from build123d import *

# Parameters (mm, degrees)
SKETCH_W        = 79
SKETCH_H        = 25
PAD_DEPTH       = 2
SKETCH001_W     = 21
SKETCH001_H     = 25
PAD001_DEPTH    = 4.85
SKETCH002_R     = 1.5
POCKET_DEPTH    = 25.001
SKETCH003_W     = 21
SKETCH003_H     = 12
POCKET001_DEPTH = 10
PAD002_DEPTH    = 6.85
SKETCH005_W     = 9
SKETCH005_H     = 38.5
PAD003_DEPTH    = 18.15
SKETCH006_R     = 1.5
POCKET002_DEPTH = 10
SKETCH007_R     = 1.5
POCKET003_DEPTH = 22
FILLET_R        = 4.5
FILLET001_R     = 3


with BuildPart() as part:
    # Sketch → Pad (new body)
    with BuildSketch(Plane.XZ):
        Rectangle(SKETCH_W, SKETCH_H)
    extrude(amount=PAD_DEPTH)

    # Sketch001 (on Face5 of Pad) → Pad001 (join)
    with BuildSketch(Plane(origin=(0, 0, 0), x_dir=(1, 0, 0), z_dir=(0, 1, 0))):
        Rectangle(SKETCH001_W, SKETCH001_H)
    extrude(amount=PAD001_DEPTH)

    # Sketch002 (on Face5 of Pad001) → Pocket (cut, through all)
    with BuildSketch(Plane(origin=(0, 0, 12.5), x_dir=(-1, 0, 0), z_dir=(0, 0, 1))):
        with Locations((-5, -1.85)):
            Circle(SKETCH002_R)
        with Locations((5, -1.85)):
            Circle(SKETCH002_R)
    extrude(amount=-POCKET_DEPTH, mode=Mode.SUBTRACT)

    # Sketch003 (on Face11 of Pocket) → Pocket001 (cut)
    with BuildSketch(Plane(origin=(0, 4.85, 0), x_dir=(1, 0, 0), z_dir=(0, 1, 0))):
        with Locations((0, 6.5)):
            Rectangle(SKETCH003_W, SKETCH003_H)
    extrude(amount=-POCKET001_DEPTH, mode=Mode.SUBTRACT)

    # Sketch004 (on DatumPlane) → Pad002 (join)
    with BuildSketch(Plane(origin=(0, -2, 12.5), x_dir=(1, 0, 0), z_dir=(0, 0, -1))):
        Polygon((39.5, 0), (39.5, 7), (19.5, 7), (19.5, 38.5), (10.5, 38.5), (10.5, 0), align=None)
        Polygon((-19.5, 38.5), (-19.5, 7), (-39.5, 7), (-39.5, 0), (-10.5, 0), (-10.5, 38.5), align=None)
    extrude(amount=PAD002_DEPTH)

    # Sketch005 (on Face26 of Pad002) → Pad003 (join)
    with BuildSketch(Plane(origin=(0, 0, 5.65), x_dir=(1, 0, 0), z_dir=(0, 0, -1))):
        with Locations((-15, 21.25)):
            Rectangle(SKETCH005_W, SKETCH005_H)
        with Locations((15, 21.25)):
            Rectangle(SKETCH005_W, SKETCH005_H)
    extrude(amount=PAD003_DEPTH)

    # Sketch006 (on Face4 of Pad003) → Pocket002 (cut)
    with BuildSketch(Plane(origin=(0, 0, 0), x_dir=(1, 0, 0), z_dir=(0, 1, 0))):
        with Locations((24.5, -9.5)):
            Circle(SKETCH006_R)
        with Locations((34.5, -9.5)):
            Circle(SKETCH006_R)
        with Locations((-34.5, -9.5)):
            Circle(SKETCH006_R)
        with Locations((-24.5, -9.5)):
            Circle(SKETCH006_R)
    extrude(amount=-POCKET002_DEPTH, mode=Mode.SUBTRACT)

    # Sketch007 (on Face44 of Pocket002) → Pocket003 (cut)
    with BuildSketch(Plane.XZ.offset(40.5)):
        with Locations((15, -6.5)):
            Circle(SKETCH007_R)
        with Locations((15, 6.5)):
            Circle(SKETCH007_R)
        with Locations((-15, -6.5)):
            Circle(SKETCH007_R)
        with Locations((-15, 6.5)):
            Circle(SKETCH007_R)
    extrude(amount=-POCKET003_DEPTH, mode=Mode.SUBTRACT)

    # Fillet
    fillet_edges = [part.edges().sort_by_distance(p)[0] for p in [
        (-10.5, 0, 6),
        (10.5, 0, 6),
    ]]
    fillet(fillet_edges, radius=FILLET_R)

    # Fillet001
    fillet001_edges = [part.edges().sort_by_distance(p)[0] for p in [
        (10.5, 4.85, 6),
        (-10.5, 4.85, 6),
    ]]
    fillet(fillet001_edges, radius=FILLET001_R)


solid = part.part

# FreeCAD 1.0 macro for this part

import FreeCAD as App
import Part
import Sketcher

V = App.Vector
Q = App.Units.Quantity


def edges_at(feature, points):
    """Names of the edges that pass closest to the given points."""
    edges = feature.Shape.Edges
    near = lambda p: min(range(len(edges)), key=lambda i: edges[i].distToShape(Part.Vertex(*p))[0])
    return sorted({f"Edge{near(p) + 1}" for p in points})

doc = App.newDocument("Part")
body = doc.addObject("PartDesign::Body", "Body")

# Sketch on XZ plane
sketch1 = body.newObject("Sketcher::SketchObject", "Sketch")
sketch1.AttachmentSupport = (doc.getObject("XZ_Plane"), [""])
sketch1.MapMode = "FlatFace"
sketch1.addGeometry([
    Part.LineSegment(V(-39.5, 12.5, 0), V(-39.5, -12.5, 0)),
    Part.LineSegment(V(-39.5, -12.5, 0), V(39.5, -12.5, 0)),
    Part.LineSegment(V(39.5, -12.5, 0), V(39.5, 12.5, 0)),
    Part.LineSegment(V(39.5, 12.5, 0), V(-39.5, 12.5, 0)),
], False)
sketch1.addConstraint([
    Sketcher.Constraint("Coincident", 0, 2, 1, 1),
    Sketcher.Constraint("Coincident", 1, 2, 2, 1),
    Sketcher.Constraint("Coincident", 2, 2, 3, 1),
    Sketcher.Constraint("Coincident", 3, 2, 0, 1),
    Sketcher.Constraint("Vertical", 0),
    Sketcher.Constraint("Horizontal", 1),
    Sketcher.Constraint("Vertical", 2),
    Sketcher.Constraint("Horizontal", 3),
    Sketcher.Constraint("Symmetric", 0, 2, 2, 2, -1, 1),
    Sketcher.Constraint("DistanceX", 1, 1, 1, 2, Q("79 mm")),
    Sketcher.Constraint("DistanceY", 0, 2, 0, 1, Q("25 mm")),
])
pad1 = body.newObject("PartDesign::Pad", "Pad")
pad1.Profile = sketch1
pad1.Length = 2

# Sketch on XZ plane
sketch2 = body.newObject("Sketcher::SketchObject", "Sketch001")
sketch2.AttachmentSupport = (doc.getObject("XZ_Plane"), [""])
sketch2.MapMode = "FlatFace"
sketch2.addGeometry([
    Part.LineSegment(V(-10.5, -12.5, 0), V(-10.5, 12.5, 0)),
    Part.LineSegment(V(-10.5, 12.5, 0), V(10.5, 12.5, 0)),
    Part.LineSegment(V(10.5, 12.5, 0), V(10.5, -12.5, 0)),
    Part.LineSegment(V(10.5, -12.5, 0), V(-10.5, -12.5, 0)),
], False)
sketch2.addConstraint([
    Sketcher.Constraint("Coincident", 0, 2, 1, 1),
    Sketcher.Constraint("Coincident", 1, 2, 2, 1),
    Sketcher.Constraint("Coincident", 2, 2, 3, 1),
    Sketcher.Constraint("Coincident", 3, 2, 0, 1),
    Sketcher.Constraint("Vertical", 0),
    Sketcher.Constraint("Horizontal", 1),
    Sketcher.Constraint("Vertical", 2),
    Sketcher.Constraint("Horizontal", 3),
    Sketcher.Constraint("Symmetric", 0, 2, 2, 2, -1, 1),
    Sketcher.Constraint("DistanceX", 1, 1, 1, 2, Q("21 mm")),
    Sketcher.Constraint("DistanceY", 0, 1, 0, 2, Q("25 mm")),
])
pad2 = body.newObject("PartDesign::Pad", "Pad001")
pad2.Profile = sketch2
pad2.Length = 4.85
pad2.Reversed = True

# Sketch on XY plane
sketch3 = body.newObject("Sketcher::SketchObject", "Sketch002")
sketch3.AttachmentSupport = (doc.getObject("XY_Plane"), [""])
sketch3.MapMode = "FlatFace"
sketch3.AttachmentOffset = App.Placement(V(0, 0, 12.5), App.Rotation())
sketch3.addGeometry([
    Part.Circle(V(5, 1.85, 0), V(0, 0, 1), 1.5),
    Part.Circle(V(-5, 1.85, 0), V(0, 0, 1), 1.5),
], False)
sketch3.addConstraint([
    Sketcher.Constraint("Equal", 0, 1),
    Sketcher.Constraint("Symmetric", 0, 3, 1, 3, -2),
    Sketcher.Constraint("Diameter", 0, Q("3 mm")),
    Sketcher.Constraint("DistanceX", -1, 1, 0, 3, Q("5 mm")),
    Sketcher.Constraint("DistanceY", -1, 1, 0, 3, Q("1.85 mm")),
])
pocket1 = body.newObject("PartDesign::Pocket", "Pocket")
pocket1.Profile = sketch3
pocket1.Type = "ThroughAll"

# Sketch on XZ plane
sketch4 = body.newObject("Sketcher::SketchObject", "Sketch003")
sketch4.AttachmentSupport = (doc.getObject("XZ_Plane"), [""])
sketch4.MapMode = "FlatFace"
sketch4.AttachmentOffset = App.Placement(V(0, 0, -4.85), App.Rotation())
sketch4.addGeometry([
    Part.LineSegment(V(-10.5, -12.5, 0), V(-10.5, -0.5, 0)),
    Part.LineSegment(V(-10.5, -0.5, 0), V(10.5, -0.5, 0)),
    Part.LineSegment(V(10.5, -0.5, 0), V(10.5, -12.5, 0)),
    Part.LineSegment(V(10.5, -12.5, 0), V(-10.5, -12.5, 0)),
], False)
sketch4.addConstraint([
    Sketcher.Constraint("Coincident", 0, 2, 1, 1),
    Sketcher.Constraint("Coincident", 1, 2, 2, 1),
    Sketcher.Constraint("Coincident", 2, 2, 3, 1),
    Sketcher.Constraint("Coincident", 3, 2, 0, 1),
    Sketcher.Constraint("Vertical", 0),
    Sketcher.Constraint("Horizontal", 1),
    Sketcher.Constraint("Vertical", 2),
    Sketcher.Constraint("Horizontal", 3),
    Sketcher.Constraint("DistanceX", 1, 1, 1, 2, Q("21 mm")),
    Sketcher.Constraint("DistanceY", 0, 1, 0, 2, Q("12 mm")),
    Sketcher.Constraint("DistanceX", 0, 2, -1, 1, Q("10.5 mm")),
    Sketcher.Constraint("DistanceY", 0, 2, -1, 1, Q("0.5 mm")),
])
pocket2 = body.newObject("PartDesign::Pocket", "Pocket001")
pocket2.Profile = sketch4
pocket2.Length = 10
pocket2.Reversed = True

# Sketch on XY plane
sketch5 = body.newObject("Sketcher::SketchObject", "Sketch004")
sketch5.AttachmentSupport = (doc.getObject("XY_Plane"), [""])
sketch5.MapMode = "FlatFace"
sketch5.AttachmentOffset = App.Placement(V(0, 0, 12.5), App.Rotation())
sketch5.addGeometry([
    Part.LineSegment(V(39.5, -2, 0), V(39.5, -9, 0)),  # 0
    Part.LineSegment(V(39.5, -9, 0), V(19.5, -9, 0)),  # 1
    Part.LineSegment(V(19.5, -9, 0), V(19.5, -40.5, 0)),  # 2
    Part.LineSegment(V(19.5, -40.5, 0), V(10.5, -40.5, 0)),  # 3
    Part.LineSegment(V(10.5, -40.5, 0), V(10.5, -2, 0)),  # 4
    Part.LineSegment(V(10.5, -2, 0), V(39.5, -2, 0)),  # 5
    Part.LineSegment(V(-19.5, -40.5, 0), V(-19.5, -9, 0)),  # 6
    Part.LineSegment(V(-19.5, -9, 0), V(-39.5, -9, 0)),  # 7
    Part.LineSegment(V(-39.5, -9, 0), V(-39.5, -2, 0)),  # 8
    Part.LineSegment(V(-39.5, -2, 0), V(-10.5, -2, 0)),  # 9
    Part.LineSegment(V(-10.5, -2, 0), V(-10.5, -40.5, 0)),  # 10
    Part.LineSegment(V(-10.5, -40.5, 0), V(-19.5, -40.5, 0)),  # 11
], False)
sketch5.addConstraint([
    Sketcher.Constraint("Coincident", 0, 2, 1, 1),
    Sketcher.Constraint("Coincident", 1, 2, 2, 1),
    Sketcher.Constraint("Coincident", 2, 2, 3, 1),
    Sketcher.Constraint("Coincident", 3, 2, 4, 1),
    Sketcher.Constraint("Coincident", 4, 2, 5, 1),
    Sketcher.Constraint("Coincident", 5, 2, 0, 1),
    Sketcher.Constraint("Coincident", 6, 2, 7, 1),
    Sketcher.Constraint("Coincident", 7, 2, 8, 1),
    Sketcher.Constraint("Coincident", 8, 2, 9, 1),
    Sketcher.Constraint("Coincident", 9, 2, 10, 1),
    Sketcher.Constraint("Coincident", 10, 2, 11, 1),
    Sketcher.Constraint("Coincident", 11, 2, 6, 1),
    Sketcher.Constraint("Vertical", 0),
    Sketcher.Constraint("Horizontal", 1),
    Sketcher.Constraint("Vertical", 2),
    Sketcher.Constraint("Horizontal", 3),
    Sketcher.Constraint("Vertical", 4),
    Sketcher.Constraint("Horizontal", 5),
    Sketcher.Constraint("Vertical", 6),
    Sketcher.Constraint("Horizontal", 7),
    Sketcher.Constraint("Vertical", 8),
    Sketcher.Constraint("Horizontal", 9),
    Sketcher.Constraint("Vertical", 10),
    Sketcher.Constraint("Horizontal", 11),
    Sketcher.Constraint("Symmetric", 1, 2, 6, 2, -2),
    Sketcher.Constraint("Symmetric", 5, 2, 8, 2, -2),
    Sketcher.Constraint("Symmetric", 3, 2, 10, 2, -2),
    Sketcher.Constraint("DistanceX", 1, 2, 1, 1, Q("20 mm")),
    Sketcher.Constraint("DistanceX", 3, 2, 3, 1, Q("9 mm")),
    Sketcher.Constraint("DistanceY", 0, 2, 0, 1, Q("7 mm")),
    Sketcher.Constraint("DistanceY", 2, 2, 2, 1, Q("31.5 mm")),
    Sketcher.Constraint("DistanceY", 0, 2, -1, 1, Q("9 mm")),
    Sketcher.Constraint("DistanceX", 6, 2, 4, 2, Q("30 mm")),
])
pad3 = body.newObject("PartDesign::Pad", "Pad002")
pad3.Profile = sketch5
pad3.Length = 6.85
pad3.Reversed = True

# Sketch on XY plane
sketch6 = body.newObject("Sketcher::SketchObject", "Sketch005")
sketch6.AttachmentSupport = (doc.getObject("XY_Plane"), [""])
sketch6.MapMode = "FlatFace"
sketch6.AttachmentOffset = App.Placement(V(0, 0, 5.65), App.Rotation())
sketch6.addGeometry([
    Part.LineSegment(V(-19.5, -40.5, 0), V(-19.5, -2, 0)),  # 0
    Part.LineSegment(V(-19.5, -2, 0), V(-10.5, -2, 0)),  # 1
    Part.LineSegment(V(-10.5, -2, 0), V(-10.5, -40.5, 0)),  # 2
    Part.LineSegment(V(-10.5, -40.5, 0), V(-19.5, -40.5, 0)),  # 3
    Part.LineSegment(V(10.5, -40.5, 0), V(10.5, -2, 0)),  # 4
    Part.LineSegment(V(10.5, -2, 0), V(19.5, -2, 0)),  # 5
    Part.LineSegment(V(19.5, -2, 0), V(19.5, -40.5, 0)),  # 6
    Part.LineSegment(V(19.5, -40.5, 0), V(10.5, -40.5, 0)),  # 7
], False)
sketch6.addConstraint([
    Sketcher.Constraint("Coincident", 0, 2, 1, 1),
    Sketcher.Constraint("Coincident", 1, 2, 2, 1),
    Sketcher.Constraint("Coincident", 2, 2, 3, 1),
    Sketcher.Constraint("Coincident", 3, 2, 0, 1),
    Sketcher.Constraint("Coincident", 4, 2, 5, 1),
    Sketcher.Constraint("Coincident", 5, 2, 6, 1),
    Sketcher.Constraint("Coincident", 6, 2, 7, 1),
    Sketcher.Constraint("Coincident", 7, 2, 4, 1),
    Sketcher.Constraint("Vertical", 0),
    Sketcher.Constraint("Horizontal", 1),
    Sketcher.Constraint("Vertical", 2),
    Sketcher.Constraint("Horizontal", 3),
    Sketcher.Constraint("Vertical", 4),
    Sketcher.Constraint("Horizontal", 5),
    Sketcher.Constraint("Vertical", 6),
    Sketcher.Constraint("Horizontal", 7),
    Sketcher.Constraint("Symmetric", 1, 2, 4, 2, -2),
    Sketcher.Constraint("Symmetric", 3, 2, 6, 2, -2),
    Sketcher.Constraint("DistanceX", 1, 1, 1, 2, Q("9 mm")),
    Sketcher.Constraint("DistanceY", 0, 1, 0, 2, Q("38.5 mm")),
    Sketcher.Constraint("DistanceY", 0, 2, -1, 1, Q("2 mm")),
    Sketcher.Constraint("DistanceX", 1, 2, 4, 2, Q("21 mm")),
])
pad4 = body.newObject("PartDesign::Pad", "Pad003")
pad4.Profile = sketch6
pad4.Length = 18.15
pad4.Reversed = True

# Sketch on XZ plane
sketch7 = body.newObject("Sketcher::SketchObject", "Sketch006")
sketch7.AttachmentSupport = (doc.getObject("XZ_Plane"), [""])
sketch7.MapMode = "FlatFace"
sketch7.addGeometry([
    Part.Circle(V(24.5, 9.5, 0), V(0, 0, 1), 1.5),
    Part.Circle(V(34.5, 9.5, 0), V(0, 0, 1), 1.5),
    Part.Circle(V(-34.5, 9.5, 0), V(0, 0, 1), 1.5),
    Part.Circle(V(-24.5, 9.5, 0), V(0, 0, 1), 1.5),
], False)
sketch7.addConstraint([
    Sketcher.Constraint("Equal", 0, 1),
    Sketcher.Constraint("Equal", 1, 2),
    Sketcher.Constraint("Equal", 2, 3),
    Sketcher.Constraint("Symmetric", 1, 3, 2, 3, -2),
    Sketcher.Constraint("Symmetric", 0, 3, 3, 3, -2),
    Sketcher.Constraint("Horizontal", 0, 3, 1, 3),
    Sketcher.Constraint("Diameter", 0, Q("3 mm")),
    Sketcher.Constraint("DistanceX", 0, 3, 1, 3, Q("10 mm")),
    Sketcher.Constraint("DistanceX", 2, 3, 0, 3, Q("59 mm")),
    Sketcher.Constraint("DistanceY", -1, 1, 0, 3, Q("9.5 mm")),
])
pocket3 = body.newObject("PartDesign::Pocket", "Pocket002")
pocket3.Profile = sketch7
pocket3.Length = 10
pocket3.Reversed = True

# Sketch on XZ plane
sketch8 = body.newObject("Sketcher::SketchObject", "Sketch007")
sketch8.AttachmentSupport = (doc.getObject("XZ_Plane"), [""])
sketch8.MapMode = "FlatFace"
sketch8.AttachmentOffset = App.Placement(V(0, 0, 40.5), App.Rotation())
sketch8.addGeometry([
    Part.Circle(V(15, -6.5, 0), V(0, 0, 1), 1.5),
    Part.Circle(V(15, 6.5, 0), V(0, 0, 1), 1.5),
    Part.Circle(V(-15, -6.5, 0), V(0, 0, 1), 1.5),
    Part.Circle(V(-15, 6.5, 0), V(0, 0, 1), 1.5),
], False)
sketch8.addConstraint([
    Sketcher.Constraint("Equal", 0, 1),
    Sketcher.Constraint("Equal", 1, 2),
    Sketcher.Constraint("Equal", 2, 3),
    Sketcher.Constraint("Symmetric", 1, 3, 2, 3, -1, 1),
    Sketcher.Constraint("Symmetric", 0, 3, 3, 3, -1, 1),
    Sketcher.Constraint("Symmetric", 0, 3, 2, 3, -2),
    Sketcher.Constraint("Diameter", 0, Q("3 mm")),
    Sketcher.Constraint("DistanceX", -1, 1, 0, 3, Q("15 mm")),
    Sketcher.Constraint("DistanceY", 0, 3, 1, 3, Q("13 mm")),
])
pocket4 = body.newObject("PartDesign::Pocket", "Pocket003")
pocket4.Profile = sketch8
pocket4.Length = 22
doc.recompute()

fillet = body.newObject("PartDesign::Fillet", "Fillet")
fillet.Base = (pocket4, edges_at(pocket4, [(-10.5, 0, 6), (10.5, 0, 6)]))
fillet.Radius = 4.5
doc.recompute()

fillet2 = body.newObject("PartDesign::Fillet", "Fillet001")
fillet2.Base = (fillet, edges_at(fillet, [(10.5, 4.85, 6), (-10.5, 4.85, 6)]))
fillet2.Radius = 3

doc.recompute()
